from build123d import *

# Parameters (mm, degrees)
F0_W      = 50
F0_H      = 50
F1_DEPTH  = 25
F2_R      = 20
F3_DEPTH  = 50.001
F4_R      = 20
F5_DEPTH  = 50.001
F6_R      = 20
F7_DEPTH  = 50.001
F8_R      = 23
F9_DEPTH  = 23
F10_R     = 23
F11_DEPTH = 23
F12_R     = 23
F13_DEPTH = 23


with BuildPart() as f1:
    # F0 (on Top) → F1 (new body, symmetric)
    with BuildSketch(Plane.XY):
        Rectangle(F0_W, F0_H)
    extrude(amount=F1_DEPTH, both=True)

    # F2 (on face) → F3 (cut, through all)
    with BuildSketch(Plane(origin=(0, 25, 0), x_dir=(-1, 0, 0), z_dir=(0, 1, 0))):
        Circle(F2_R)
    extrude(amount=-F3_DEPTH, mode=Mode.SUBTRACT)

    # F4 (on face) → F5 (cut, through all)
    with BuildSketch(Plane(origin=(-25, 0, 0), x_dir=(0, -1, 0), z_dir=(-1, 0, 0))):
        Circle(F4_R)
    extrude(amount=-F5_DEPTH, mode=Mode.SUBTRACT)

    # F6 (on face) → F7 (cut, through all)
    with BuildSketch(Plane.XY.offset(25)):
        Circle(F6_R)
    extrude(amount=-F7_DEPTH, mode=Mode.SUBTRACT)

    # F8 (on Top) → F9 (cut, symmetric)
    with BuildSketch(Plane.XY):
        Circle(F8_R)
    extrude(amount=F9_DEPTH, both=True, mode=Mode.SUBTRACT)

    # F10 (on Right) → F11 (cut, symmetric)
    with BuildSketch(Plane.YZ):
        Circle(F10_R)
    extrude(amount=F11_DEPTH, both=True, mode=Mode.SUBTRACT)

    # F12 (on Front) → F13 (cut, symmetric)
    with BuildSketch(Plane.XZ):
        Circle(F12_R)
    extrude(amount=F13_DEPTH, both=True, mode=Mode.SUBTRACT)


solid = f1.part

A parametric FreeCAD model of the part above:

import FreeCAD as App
import Part
import Sketcher

V = App.Vector

doc = App.newDocument("Part")
body = doc.addObject("PartDesign::Body", "Body")

# Sketch on XY plane
sketch1 = body.newObject("Sketcher::SketchObject", "Sketch")
sketch1.AttachmentSupport = (doc.getObject("XY_Plane"), [""])
sketch1.MapMode = "FlatFace"
sketch1.addGeometry(Part.LineSegment(V(-25, 25, 0), V(-25, -25, 0)), False)
sketch1.addGeometry(Part.LineSegment(V(-25, -25, 0), V(25, -25, 0)), False)
sketch1.addGeometry(Part.LineSegment(V(25, -25, 0), V(25, 25, 0)), False)
sketch1.addGeometry(Part.LineSegment(V(25, 25, 0), V(-25, 25, 0)), False)
sketch1.addConstraint(Sketcher.Constraint("Coincident", 0, 2, 1, 1))
sketch1.addConstraint(Sketcher.Constraint("Coincident", 1, 2, 2, 1))
sketch1.addConstraint(Sketcher.Constraint("Coincident", 2, 2, 3, 1))
sketch1.addConstraint(Sketcher.Constraint("Coincident", 3, 2, 0, 1))
sketch1.addConstraint(Sketcher.Constraint("Vertical", 0))
sketch1.addConstraint(Sketcher.Constraint("Horizontal", 1))
sketch1.addConstraint(Sketcher.Constraint("Vertical", 2))
sketch1.addConstraint(Sketcher.Constraint("Horizontal", 3))
sketch1.addConstraint(Sketcher.Constraint("Symmetric", 0, 2, 2, 2, -1, 1))
sketch1.addConstraint(Sketcher.Constraint("Equal", 3, 0))
sketch1.addConstraint(Sketcher.Constraint("DistanceX", 1, 1, 1, 2, 50.0))
pad1 = body.newObject("PartDesign::Pad", "Pad")
pad1.Profile = sketch1
pad1.Length = 50
pad1.Midplane = True

# Sketch on XZ plane
sketch2 = body.newObject("Sketcher::SketchObject", "Sketch001")
sketch2.AttachmentSupport = (doc.getObject("XZ_Plane"), [""])
sketch2.MapMode = "FlatFace"
sketch2.AttachmentOffset = App.Placement(V(0, 0, -25), App.Rotation())
sketch2.addGeometry(Part.Circle(V(0, 0, 0), V(0, 0, 1), 20), False)
sketch2.addConstraint(Sketcher.Constraint("Coincident", 0, 3, -1, 1))
sketch2.addConstraint(Sketcher.Constraint("Diameter", 0, 40.0))
pocket1 = body.newObject("PartDesign::Pocket", "Pocket")
pocket1.Profile = sketch2
pocket1.Type = "ThroughAll"
pocket1.Reversed = True

# Sketch on YZ plane
sketch3 = body.newObject("Sketcher::SketchObject", "Sketch002")
sketch3.AttachmentSupport = (doc.getObject("YZ_Plane"), [""])
sketch3.MapMode = "FlatFace"
sketch3.AttachmentOffset = App.Placement(V(0, 0, -25), App.Rotation())
sketch3.addGeometry(Part.Circle(V(0, 0, 0), V(0, 0, 1), 20), False)
sketch3.addConstraint(Sketcher.Constraint("Coincident", 0, 3, -1, 1))
sketch3.addConstraint(Sketcher.Constraint("Diameter", 0, 40.0))
pocket2 = body.newObject("PartDesign::Pocket", "Pocket001")
pocket2.Profile = sketch3
pocket2.Type = "ThroughAll"
pocket2.Reversed = True

# Sketch on XY plane
sketch4 = body.newObject("Sketcher::SketchObject", "Sketch003")
sketch4.AttachmentSupport = (doc.getObject("XY_Plane"), [""])
sketch4.MapMode = "FlatFace"
sketch4.AttachmentOffset = App.Placement(V(0, 0, 25), App.Rotation())
sketch4.addGeometry(Part.Circle(V(0, 0, 0), V(0, 0, 1), 20), False)
sketch4.addConstraint(Sketcher.Constraint("Coincident", 0, 3, -1, 1))
sketch4.addConstraint(Sketcher.Constraint("Diameter", 0, 40.0))
pocket3 = body.newObject("PartDesign::Pocket", "Pocket002")
pocket3.Profile = sketch4
pocket3.Type = "ThroughAll"

# Sketch on XY plane
sketch5 = body.newObject("Sketcher::SketchObject", "Sketch004")
sketch5.AttachmentSupport = (doc.getObject("XY_Plane"), [""])
sketch5.MapMode = "FlatFace"
sketch5.addGeometry(Part.Circle(V(0, 0, 0), V(0, 0, 1), 23), False)
sketch5.addConstraint(Sketcher.Constraint("Coincident", 0, 3, -1, 1))
sketch5.addConstraint(Sketcher.Constraint("Diameter", 0, 46.0))
pocket4 = body.newObject("PartDesign::Pocket", "Pocket003")
pocket4.Profile = sketch5
pocket4.Length = 46
pocket4.Midplane = True

# Sketch on YZ plane
sketch6 = body.newObject("Sketcher::SketchObject", "Sketch005")
sketch6.AttachmentSupport = (doc.getObject("YZ_Plane"), [""])
sketch6.MapMode = "FlatFace"
sketch6.addGeometry(Part.Circle(V(0, 0, 0), V(0, 0, 1), 23), False)
sketch6.addConstraint(Sketcher.Constraint("Coincident", 0, 3, -1, 1))
sketch6.addConstraint(Sketcher.Constraint("Diameter", 0, 46.0))
pocket5 = body.newObject("PartDesign::Pocket", "Pocket004")
pocket5.Profile = sketch6
pocket5.Length = 46
pocket5.Midplane = True

# Sketch on XZ plane
sketch7 = body.newObject("Sketcher::SketchObject", "Sketch006")
sketch7.AttachmentSupport = (doc.getObject("XZ_Plane"), [""])
sketch7.MapMode = "FlatFace"
sketch7.addGeometry(Part.Circle(V(0, 0, 0), V(0, 0, 1), 23), False)
sketch7.addConstraint(Sketcher.Constraint("Coincident", 0, 3, -1, 1))
sketch7.addConstraint(Sketcher.Constraint("Diameter", 0, 46.0))
pocket6 = body.newObject("PartDesign::Pocket", "Pocket005")
pocket6.Profile = sketch7
pocket6.Length = 46
pocket6.Midplane = True

doc.recompute()
